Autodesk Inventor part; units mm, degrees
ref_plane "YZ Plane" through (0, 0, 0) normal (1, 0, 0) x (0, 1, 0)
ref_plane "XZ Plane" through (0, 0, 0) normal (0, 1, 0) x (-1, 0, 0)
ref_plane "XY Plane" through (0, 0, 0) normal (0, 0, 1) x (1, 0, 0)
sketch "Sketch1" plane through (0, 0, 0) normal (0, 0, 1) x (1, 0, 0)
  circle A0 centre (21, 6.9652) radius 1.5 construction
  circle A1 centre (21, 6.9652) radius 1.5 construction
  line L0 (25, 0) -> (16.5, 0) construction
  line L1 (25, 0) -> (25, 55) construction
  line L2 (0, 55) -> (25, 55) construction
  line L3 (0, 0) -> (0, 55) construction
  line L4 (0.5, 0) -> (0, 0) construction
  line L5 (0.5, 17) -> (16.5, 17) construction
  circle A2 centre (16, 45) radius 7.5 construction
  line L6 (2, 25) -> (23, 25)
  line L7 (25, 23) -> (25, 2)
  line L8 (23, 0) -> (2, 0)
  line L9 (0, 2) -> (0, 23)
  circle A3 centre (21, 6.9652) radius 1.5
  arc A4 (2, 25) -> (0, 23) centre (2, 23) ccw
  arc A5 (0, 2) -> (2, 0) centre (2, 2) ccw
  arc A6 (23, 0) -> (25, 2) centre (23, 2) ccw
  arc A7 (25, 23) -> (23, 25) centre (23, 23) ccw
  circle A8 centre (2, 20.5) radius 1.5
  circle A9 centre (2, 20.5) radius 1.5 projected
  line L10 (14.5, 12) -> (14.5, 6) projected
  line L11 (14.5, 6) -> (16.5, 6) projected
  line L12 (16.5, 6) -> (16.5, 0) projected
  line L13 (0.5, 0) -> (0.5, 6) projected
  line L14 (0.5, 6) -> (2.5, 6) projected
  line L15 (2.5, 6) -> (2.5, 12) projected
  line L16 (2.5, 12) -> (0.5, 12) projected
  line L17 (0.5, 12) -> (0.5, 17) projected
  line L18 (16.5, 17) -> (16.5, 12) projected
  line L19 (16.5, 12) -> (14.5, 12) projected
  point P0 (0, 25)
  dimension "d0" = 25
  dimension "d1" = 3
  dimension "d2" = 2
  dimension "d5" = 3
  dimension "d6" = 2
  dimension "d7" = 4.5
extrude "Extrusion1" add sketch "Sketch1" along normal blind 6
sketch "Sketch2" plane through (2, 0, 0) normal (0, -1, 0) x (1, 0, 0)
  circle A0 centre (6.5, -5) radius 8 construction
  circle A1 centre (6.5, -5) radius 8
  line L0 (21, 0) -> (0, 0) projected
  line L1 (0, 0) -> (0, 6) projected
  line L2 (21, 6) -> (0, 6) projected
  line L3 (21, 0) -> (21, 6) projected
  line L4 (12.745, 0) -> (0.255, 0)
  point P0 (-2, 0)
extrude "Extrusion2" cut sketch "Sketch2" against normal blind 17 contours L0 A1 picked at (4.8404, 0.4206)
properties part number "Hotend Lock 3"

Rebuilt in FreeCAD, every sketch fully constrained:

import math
import FreeCAD as App
import Part
import Sketcher
Q = App.Units.Quantity

doc = App.newDocument("Part")
body = doc.addObject("PartDesign::Body", "Body")

# Sketch on XY plane
sketch1 = doc.addObject("Sketcher::SketchObject", "Sketch")
body.addObject(sketch1)
sketch1.AttachmentSupport = (doc.XY_Plane, [""])
sketch1.MapMode = "FlatFace"
sketch1.addGeometry([
    Part.LineSegment(App.Vector(23, 25, 0), App.Vector(2, 25, 0)),  # 0
    Part.ArcOfCircle(Part.Circle(App.Vector(2, 23, 0), App.Vector(0, 0, 1), 2), math.radians(90), math.radians(180)),  # 1
    Part.LineSegment(App.Vector(0, 23, 0), App.Vector(0, 2, 0)),  # 2
    Part.ArcOfCircle(Part.Circle(App.Vector(2, 2, 0), App.Vector(0, 0, 1), 2), math.radians(180), math.radians(270)),  # 3
    Part.LineSegment(App.Vector(2, 0, 0), App.Vector(23, 0, 0)),  # 4
    Part.ArcOfCircle(Part.Circle(App.Vector(23, 2, 0), App.Vector(0, 0, 1), 2), math.radians(-90), math.radians(0)),  # 5
    Part.LineSegment(App.Vector(25, 2, 0), App.Vector(25, 23, 0)),  # 6
    Part.ArcOfCircle(Part.Circle(App.Vector(23, 23, 0), App.Vector(0, 0, 1), 2), math.radians(0), math.radians(90)),  # 7
    Part.Circle(App.Vector(21, 7, 0), App.Vector(0, 0, 1), 1.5),  # 8
    Part.Circle(App.Vector(2, 20.5, 0), App.Vector(0, 0, 1), 1.5),  # 9
], False)
sketch1.addConstraint([
    Sketcher.Constraint("Tangent", 0, 2, 1, 1),
    Sketcher.Constraint("Tangent", 1, 2, 2, 1),
    Sketcher.Constraint("Tangent", 2, 2, 3, 1),
    Sketcher.Constraint("Tangent", 3, 2, 4, 1),
    Sketcher.Constraint("Tangent", 4, 2, 5, 1),
    Sketcher.Constraint("Tangent", 5, 2, 6, 1),
    Sketcher.Constraint("Tangent", 6, 2, 7, 1),
    Sketcher.Constraint("Tangent", 7, 2, 0, 1),
    Sketcher.Constraint("Horizontal", 0),
    Sketcher.Constraint("Vertical", 2),
    Sketcher.Constraint("Horizontal", 4),
    Sketcher.Constraint("Vertical", 6),
    Sketcher.Constraint("Equal", 1, 3),
    Sketcher.Constraint("Equal", 3, 5),
    Sketcher.Constraint("Equal", 5, 7),
    Sketcher.Constraint("Equal", 8, 9),
    Sketcher.Constraint("PointOnObject", 1, 2, -2),
    Sketcher.Constraint("PointOnObject", 3, 2, -1),
    Sketcher.Constraint("Vertical", 3, 3, 9, 3),
    Sketcher.Constraint("Equal", 4, 2),
    Sketcher.Constraint("Diameter", 8, Q("3 mm")),
    Sketcher.Constraint("Radius", 1, Q("2 mm")),
    Sketcher.Constraint("DistanceY", -1, 1, 0, 2, Q("25 mm")),
    Sketcher.Constraint("DistanceX", 8, 3, 5, 3, Q("2 mm")),
    Sketcher.Constraint("DistanceY", 9, 3, 0, 2, Q("4.5 mm")),
    Sketcher.Constraint("DistanceY", -1, 1, 8, 3, Q("6.9652 mm")),
])
pad1 = doc.addObject("PartDesign::Pad", "Pad")
body.addObject(pad1)
pad1.Profile = sketch1
pad1.Length = 6

# Sketch on XZ plane
sketch2 = doc.addObject("Sketcher::SketchObject", "Sketch001")
body.addObject(sketch2)
sketch2.AttachmentSupport = (doc.XZ_Plane, [""])
sketch2.MapMode = "FlatFace"
sketch2.addGeometry([
    Part.LineSegment(App.Vector(2, 0, 0), App.Vector(15, 0, 0)),
    Part.ArcOfCircle(Part.Circle(App.Vector(8, -5, 0), App.Vector(0, 0, 1), 8), math.radians(39), math.radians(141)),
], False)
sketch2.addConstraint([
    Sketcher.Constraint("Coincident", 0, 1, 1, 2),
    Sketcher.Constraint("Coincident", 1, 1, 0, 2),
    Sketcher.Constraint("Horizontal", 0),
    Sketcher.Constraint("PointOnObject", 0, 1, -1),
    Sketcher.Constraint("Radius", 1, Q("8 mm")),
    Sketcher.Constraint("DistanceY", 1, 3, -1, 1, Q("5 mm")),
    Sketcher.Constraint("DistanceX", -1, 1, 1, 3, Q("8.5 mm")),
])
pocket1 = doc.addObject("PartDesign::Pocket", "Pocket")
body.addObject(pocket1)
pocket1.Profile = sketch2
pocket1.Length = 17

doc.recompute()
